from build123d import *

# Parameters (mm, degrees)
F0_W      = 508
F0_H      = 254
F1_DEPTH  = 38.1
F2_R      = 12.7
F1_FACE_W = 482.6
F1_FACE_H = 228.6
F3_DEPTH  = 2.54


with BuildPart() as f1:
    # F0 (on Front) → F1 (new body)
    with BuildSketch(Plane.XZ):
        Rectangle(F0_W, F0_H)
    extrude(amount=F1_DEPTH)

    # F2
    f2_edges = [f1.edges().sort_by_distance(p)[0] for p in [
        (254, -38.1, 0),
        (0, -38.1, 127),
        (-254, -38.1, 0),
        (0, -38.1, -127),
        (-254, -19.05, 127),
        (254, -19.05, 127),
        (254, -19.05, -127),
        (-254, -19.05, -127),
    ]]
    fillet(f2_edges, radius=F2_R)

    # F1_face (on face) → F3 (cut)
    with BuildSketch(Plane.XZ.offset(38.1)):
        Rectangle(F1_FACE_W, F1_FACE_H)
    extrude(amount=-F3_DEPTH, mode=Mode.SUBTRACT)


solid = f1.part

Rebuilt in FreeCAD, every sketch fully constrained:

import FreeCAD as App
import Part
import Sketcher
from FreeCAD import Vector
Q = App.Units.Quantity


def edges_at(feature, points):
    """Names of the edges that pass closest to the given points."""
    edges = feature.Shape.Edges
    near = lambda p: min(range(len(edges)), key=lambda i: edges[i].distToShape(Part.Vertex(*p))[0])
    return sorted({f"Edge{near(p) + 1}" for p in points})


def add_polygon(sketch, points):
    """Adds a closed chain of lines whose ends are joined by coincident constraints."""
    first, n = sketch.GeometryCount, len(points)
    for a, b in zip(points, points[1:] + points[:1]):
        sketch.addGeometry(Part.LineSegment(App.Vector(*a, 0), App.Vector(*b, 0)), False)
    for i in range(n):
        sketch.addConstraint(Sketcher.Constraint("Coincident", first + i, 2, first + (i + 1) % n, 1))

doc = App.newDocument("Part")
body = doc.addObject("PartDesign::Body", "Body")

# Sketch on XZ plane
sketch1 = doc.addObject("Sketcher::SketchObject", "Sketch")
body.addObject(sketch1)
sketch1.AttachmentSupport = (doc.XZ_Plane, [""])
sketch1.MapMode = "FlatFace"
add_polygon(sketch1, [(-254, 127), (-254, -127), (254, -127), (254, 127)])  # lines 0-3
sketch1.addConstraint([
    Sketcher.Constraint("Vertical", 0),
    Sketcher.Constraint("Horizontal", 1),
    Sketcher.Constraint("Vertical", 2),
    Sketcher.Constraint("Horizontal", 3),
    Sketcher.Constraint("Symmetric", 0, 2, 2, 2, -1, 1),
    Sketcher.Constraint("DistanceX", 1, 1, 1, 2, Q("20 in")),
    Sketcher.Constraint("DistanceY", 0, 2, 0, 1, Q("10 in")),
])
pad1 = doc.addObject("PartDesign::Pad", "Pad")
body.addObject(pad1)
pad1.Profile = sketch1
pad1.Length = Q("1.5 in")
doc.recompute()

fillet = doc.addObject("PartDesign::Fillet", "Fillet")
body.addObject(fillet)
fillet.Base = (pad1, edges_at(pad1, [
    (254, -38.1, 0),
    (0, -38.1, 127),
    (-254, -38.1, 0),
    (0, -38.1, -127),
    (-254, -19.05, 127),
    (254, -19.05, 127),
    (254, -19.05, -127),
    (-254, -19.05, -127),
]))
fillet.Radius = Q("0.5 in")

# Sketch on XZ plane
sketch2 = doc.addObject("Sketcher::SketchObject", "Sketch001")
body.addObject(sketch2)
sketch2.AttachmentSupport = (doc.XZ_Plane, [""])
sketch2.MapMode = "FlatFace"
sketch2.AttachmentOffset = App.Placement(Vector(0, 0, 1.5 * 25.4), App.Rotation())
add_polygon(sketch2, [(-241, 114), (-241, -114), (241, -114), (241, 114)])  # lines 0-3
sketch2.addConstraint([
    Sketcher.Constraint("Vertical", 0),
    Sketcher.Constraint("Horizontal", 1),
    Sketcher.Constraint("Vertical", 2),
    Sketcher.Constraint("Horizontal", 3),
    Sketcher.Constraint("Symmetric", 0, 2, 2, 2, -1, 1),
    Sketcher.Constraint("DistanceX", 1, 1, 1, 2, Q("19 in")),
    Sketcher.Constraint("DistanceY", 0, 2, 0, 1, Q("9 in")),
])
pocket1 = doc.addObject("PartDesign::Pocket", "Pocket")
body.addObject(pocket1)
pocket1.Profile = sketch2
pocket1.Length = Q("0.1 in")

doc.recompute()
